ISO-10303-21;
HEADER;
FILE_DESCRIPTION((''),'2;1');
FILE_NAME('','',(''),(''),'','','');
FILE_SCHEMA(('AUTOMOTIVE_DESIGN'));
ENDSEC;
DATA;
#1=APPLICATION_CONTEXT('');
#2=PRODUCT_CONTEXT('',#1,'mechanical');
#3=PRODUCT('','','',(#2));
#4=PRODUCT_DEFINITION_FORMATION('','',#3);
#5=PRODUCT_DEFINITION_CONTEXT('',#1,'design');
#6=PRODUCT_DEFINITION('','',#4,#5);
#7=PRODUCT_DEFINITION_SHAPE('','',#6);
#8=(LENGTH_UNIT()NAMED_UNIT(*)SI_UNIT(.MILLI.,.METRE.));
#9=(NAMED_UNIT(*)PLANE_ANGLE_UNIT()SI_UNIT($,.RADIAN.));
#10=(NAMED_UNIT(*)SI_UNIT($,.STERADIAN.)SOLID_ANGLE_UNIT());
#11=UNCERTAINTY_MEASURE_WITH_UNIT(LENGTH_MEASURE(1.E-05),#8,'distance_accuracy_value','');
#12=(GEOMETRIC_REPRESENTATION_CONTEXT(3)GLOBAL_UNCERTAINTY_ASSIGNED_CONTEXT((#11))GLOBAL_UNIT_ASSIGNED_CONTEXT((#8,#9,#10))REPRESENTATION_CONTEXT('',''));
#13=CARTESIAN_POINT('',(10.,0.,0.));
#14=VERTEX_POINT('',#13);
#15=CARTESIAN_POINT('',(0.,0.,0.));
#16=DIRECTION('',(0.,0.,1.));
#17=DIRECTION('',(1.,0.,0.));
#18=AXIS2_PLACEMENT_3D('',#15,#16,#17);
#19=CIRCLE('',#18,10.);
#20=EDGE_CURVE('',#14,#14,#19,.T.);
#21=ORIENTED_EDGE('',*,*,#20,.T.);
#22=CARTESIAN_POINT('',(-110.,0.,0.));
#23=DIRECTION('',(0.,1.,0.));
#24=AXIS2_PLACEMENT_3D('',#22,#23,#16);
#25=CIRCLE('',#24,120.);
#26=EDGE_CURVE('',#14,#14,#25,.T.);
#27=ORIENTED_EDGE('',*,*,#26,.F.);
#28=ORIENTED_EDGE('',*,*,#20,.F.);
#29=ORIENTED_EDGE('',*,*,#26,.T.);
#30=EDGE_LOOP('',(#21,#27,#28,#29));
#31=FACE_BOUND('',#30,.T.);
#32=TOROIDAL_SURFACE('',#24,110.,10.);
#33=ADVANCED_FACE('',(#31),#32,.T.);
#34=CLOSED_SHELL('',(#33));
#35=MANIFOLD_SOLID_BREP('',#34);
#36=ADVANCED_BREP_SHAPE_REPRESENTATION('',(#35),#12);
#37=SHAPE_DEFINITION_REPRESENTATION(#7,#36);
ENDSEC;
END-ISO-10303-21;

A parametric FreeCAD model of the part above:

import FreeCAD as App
import Part
import Sketcher
Q = App.Units.Quantity

doc = App.newDocument("Part")
params = doc.addObject("Spreadsheet::Sheet", "Params")
for row, (alias, value) in enumerate([
    ("sketch1_diameter", "20 mm"),
    ("sketch2_diameter", "220 mm"),
], start=1):
    params.set(f"A{row}", alias)
    params.set(f"B{row}", "=" + value)
    params.setAlias(f"B{row}", alias)

body = doc.addObject("PartDesign::Body", "Body")

# Sketch on XY plane
sketch1 = doc.addObject("Sketcher::SketchObject", "Sketch")
body.addObject(sketch1)
sketch1.AttachmentSupport = (doc.XY_Plane, [""])
sketch1.MapMode = "FlatFace"
sketch1.addGeometry(Part.Circle(App.Vector(0, 0, 0), App.Vector(0, 0, 1), 10), False)
sketch1.addConstraint(Sketcher.Constraint("Coincident", 0, 3, -1, 1))
sketch1.addConstraint(Sketcher.Constraint("Diameter", 0, Q("20 mm")))
sketch1.setExpression("Constraints[1]", "Params.sketch1_diameter")

# Sketch on XZ plane
sketch2 = doc.addObject("Sketcher::SketchObject", "Sketch001")
body.addObject(sketch2)
sketch2.AttachmentSupport = (doc.XZ_Plane, [""])
sketch2.MapMode = "FlatFace"
sketch2.addGeometry(Part.Circle(App.Vector(-110, 0, 0), App.Vector(0, 0, 1), 110), False)
sketch2.addConstraint(Sketcher.Constraint("PointOnObject", 0, 3, -1))
sketch2.addConstraint(Sketcher.Constraint("Diameter", 0, Q("220 mm")))
sketch2.addConstraint(Sketcher.Constraint("DistanceX", 0, 3, -1, 1, Q("110 mm")))
sketch2.setExpression("Constraints[1]", "Params.sketch2_diameter")
doc.recompute()

additivepipe = doc.addObject("PartDesign::AdditivePipe", "AdditivePipe")
body.addObject(additivepipe)
additivepipe.Profile = sketch1
additivepipe.Spine = (sketch2, ["Edge1"])

doc.recompute()
